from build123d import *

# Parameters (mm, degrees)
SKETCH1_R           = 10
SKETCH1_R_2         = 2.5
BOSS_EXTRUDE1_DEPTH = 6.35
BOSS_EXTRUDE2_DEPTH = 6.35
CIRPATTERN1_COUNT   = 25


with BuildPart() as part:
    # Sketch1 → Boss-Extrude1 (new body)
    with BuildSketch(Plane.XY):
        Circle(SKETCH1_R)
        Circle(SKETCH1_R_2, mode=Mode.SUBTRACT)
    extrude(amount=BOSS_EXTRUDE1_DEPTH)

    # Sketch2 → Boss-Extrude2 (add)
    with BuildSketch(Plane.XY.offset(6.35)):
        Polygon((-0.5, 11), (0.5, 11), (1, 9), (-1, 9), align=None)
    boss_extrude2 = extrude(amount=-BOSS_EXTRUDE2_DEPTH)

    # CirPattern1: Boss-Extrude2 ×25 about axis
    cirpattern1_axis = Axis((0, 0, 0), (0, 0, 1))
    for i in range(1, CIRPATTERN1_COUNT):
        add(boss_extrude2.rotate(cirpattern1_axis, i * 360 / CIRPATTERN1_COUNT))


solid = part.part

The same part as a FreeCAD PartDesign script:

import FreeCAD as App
import Part
import Sketcher
from FreeCAD import Vector

doc = App.newDocument("Part")
params = doc.addObject("Spreadsheet::Sheet", "Params")
for row, (alias, value) in enumerate([
    ("sketch1_diameter", "20 mm"),
    ("sketch1_diameter2", "5 mm"),
    ("pad1_length", "6.35 mm"),
    ("sketch2_width", "1 mm"),
    ("sketch2_width2", "2 mm"),
    ("pad2_length", "6.35 mm"),
], start=1):
    params.set(f"A{row}", alias)
    params.set(f"B{row}", "=" + value)
    params.setAlias(f"B{row}", alias)

body = doc.addObject("PartDesign::Body", "Body")

sketch1 = body.newObject("Sketcher::SketchObject", "Sketch")
sketch1.AttachmentSupport = (doc.getObject("XY_Plane"), [""])
sketch1.MapMode = "FlatFace"
sketch1.addGeometry(Part.Circle(Vector(0, 0, 0), Vector(0, 0, 1), 10), False)
sketch1.addGeometry(Part.Circle(Vector(0, 0, 0), Vector(0, 0, 1), 2.5), False)
sketch1.addConstraint(Sketcher.Constraint("Coincident", 0, 3, -1, 1))
sketch1.addConstraint(Sketcher.Constraint("Coincident", 1, 3, -1, 1))
sketch1.addConstraint(Sketcher.Constraint("Diameter", 0, 20.0))
sketch1.addConstraint(Sketcher.Constraint("Diameter", 1, 5.0))
sketch1.setExpression("Constraints[2]", "Params.sketch1_diameter")
sketch1.setExpression("Constraints[3]", "Params.sketch1_diameter2")
pad1 = body.newObject("PartDesign::Pad", "Pad")
pad1.Profile = sketch1
pad1.setExpression("Length", "Params.pad1_length")

sketch2 = body.newObject("Sketcher::SketchObject", "Sketch001")
sketch2.AttachmentSupport = (doc.getObject("XY_Plane"), [""])
sketch2.MapMode = "FlatFace"
sketch2.AttachmentOffset = App.Placement(Vector(0, 0, 6.35), App.Rotation())
sketch2.addGeometry(Part.LineSegment(Vector(0.5, 11, 0), Vector(-0.5, 11, 0)), False)
sketch2.addGeometry(Part.LineSegment(Vector(-0.5, 11, 0), Vector(-1, 9, 0)), False)
sketch2.addGeometry(Part.LineSegment(Vector(-1, 9, 0), Vector(1, 9, 0)), False)
sketch2.addGeometry(Part.LineSegment(Vector(1, 9, 0), Vector(0.5, 11, 0)), False)
sketch2.addConstraint(Sketcher.Constraint("Coincident", 0, 2, 1, 1))
sketch2.addConstraint(Sketcher.Constraint("Coincident", 1, 2, 2, 1))
sketch2.addConstraint(Sketcher.Constraint("Coincident", 2, 2, 3, 1))
sketch2.addConstraint(Sketcher.Constraint("Coincident", 3, 2, 0, 1))
sketch2.addConstraint(Sketcher.Constraint("Horizontal", 0))
sketch2.addConstraint(Sketcher.Constraint("Horizontal", 2))
sketch2.addConstraint(Sketcher.Constraint("Equal", 1, 3))
sketch2.addConstraint(Sketcher.Constraint("DistanceX", 0, 2, 0, 1, 1.0))
sketch2.addConstraint(Sketcher.Constraint("DistanceX", 2, 1, 2, 2, 2.0))
sketch2.addConstraint(Sketcher.Constraint("DistanceY", -1, 1, 0, 2, 11.0))
sketch2.addConstraint(Sketcher.Constraint("DistanceX", 1, 2, -1, 1, 1.0))
sketch2.addConstraint(Sketcher.Constraint("DistanceY", -1, 1, 1, 2, 9.0))
sketch2.setExpression("Constraints[7]", "Params.sketch2_width")
sketch2.setExpression("Constraints[8]", "Params.sketch2_width2")
pad2 = body.newObject("PartDesign::Pad", "Pad001")
pad2.Profile = sketch2
pad2.setExpression("Length", "Params.pad2_length")
pad2.Reversed = True
doc.recompute()

polarpattern = body.newObject("PartDesign::PolarPattern", "PolarPattern")
polarpattern.Originals = [pad2]
polarpattern.Axis = (doc.getObject("Z_Axis"), [""])
polarpattern.Angle = 360
polarpattern.Occurrences = 25
body.Tip = polarpattern

doc.recompute()
